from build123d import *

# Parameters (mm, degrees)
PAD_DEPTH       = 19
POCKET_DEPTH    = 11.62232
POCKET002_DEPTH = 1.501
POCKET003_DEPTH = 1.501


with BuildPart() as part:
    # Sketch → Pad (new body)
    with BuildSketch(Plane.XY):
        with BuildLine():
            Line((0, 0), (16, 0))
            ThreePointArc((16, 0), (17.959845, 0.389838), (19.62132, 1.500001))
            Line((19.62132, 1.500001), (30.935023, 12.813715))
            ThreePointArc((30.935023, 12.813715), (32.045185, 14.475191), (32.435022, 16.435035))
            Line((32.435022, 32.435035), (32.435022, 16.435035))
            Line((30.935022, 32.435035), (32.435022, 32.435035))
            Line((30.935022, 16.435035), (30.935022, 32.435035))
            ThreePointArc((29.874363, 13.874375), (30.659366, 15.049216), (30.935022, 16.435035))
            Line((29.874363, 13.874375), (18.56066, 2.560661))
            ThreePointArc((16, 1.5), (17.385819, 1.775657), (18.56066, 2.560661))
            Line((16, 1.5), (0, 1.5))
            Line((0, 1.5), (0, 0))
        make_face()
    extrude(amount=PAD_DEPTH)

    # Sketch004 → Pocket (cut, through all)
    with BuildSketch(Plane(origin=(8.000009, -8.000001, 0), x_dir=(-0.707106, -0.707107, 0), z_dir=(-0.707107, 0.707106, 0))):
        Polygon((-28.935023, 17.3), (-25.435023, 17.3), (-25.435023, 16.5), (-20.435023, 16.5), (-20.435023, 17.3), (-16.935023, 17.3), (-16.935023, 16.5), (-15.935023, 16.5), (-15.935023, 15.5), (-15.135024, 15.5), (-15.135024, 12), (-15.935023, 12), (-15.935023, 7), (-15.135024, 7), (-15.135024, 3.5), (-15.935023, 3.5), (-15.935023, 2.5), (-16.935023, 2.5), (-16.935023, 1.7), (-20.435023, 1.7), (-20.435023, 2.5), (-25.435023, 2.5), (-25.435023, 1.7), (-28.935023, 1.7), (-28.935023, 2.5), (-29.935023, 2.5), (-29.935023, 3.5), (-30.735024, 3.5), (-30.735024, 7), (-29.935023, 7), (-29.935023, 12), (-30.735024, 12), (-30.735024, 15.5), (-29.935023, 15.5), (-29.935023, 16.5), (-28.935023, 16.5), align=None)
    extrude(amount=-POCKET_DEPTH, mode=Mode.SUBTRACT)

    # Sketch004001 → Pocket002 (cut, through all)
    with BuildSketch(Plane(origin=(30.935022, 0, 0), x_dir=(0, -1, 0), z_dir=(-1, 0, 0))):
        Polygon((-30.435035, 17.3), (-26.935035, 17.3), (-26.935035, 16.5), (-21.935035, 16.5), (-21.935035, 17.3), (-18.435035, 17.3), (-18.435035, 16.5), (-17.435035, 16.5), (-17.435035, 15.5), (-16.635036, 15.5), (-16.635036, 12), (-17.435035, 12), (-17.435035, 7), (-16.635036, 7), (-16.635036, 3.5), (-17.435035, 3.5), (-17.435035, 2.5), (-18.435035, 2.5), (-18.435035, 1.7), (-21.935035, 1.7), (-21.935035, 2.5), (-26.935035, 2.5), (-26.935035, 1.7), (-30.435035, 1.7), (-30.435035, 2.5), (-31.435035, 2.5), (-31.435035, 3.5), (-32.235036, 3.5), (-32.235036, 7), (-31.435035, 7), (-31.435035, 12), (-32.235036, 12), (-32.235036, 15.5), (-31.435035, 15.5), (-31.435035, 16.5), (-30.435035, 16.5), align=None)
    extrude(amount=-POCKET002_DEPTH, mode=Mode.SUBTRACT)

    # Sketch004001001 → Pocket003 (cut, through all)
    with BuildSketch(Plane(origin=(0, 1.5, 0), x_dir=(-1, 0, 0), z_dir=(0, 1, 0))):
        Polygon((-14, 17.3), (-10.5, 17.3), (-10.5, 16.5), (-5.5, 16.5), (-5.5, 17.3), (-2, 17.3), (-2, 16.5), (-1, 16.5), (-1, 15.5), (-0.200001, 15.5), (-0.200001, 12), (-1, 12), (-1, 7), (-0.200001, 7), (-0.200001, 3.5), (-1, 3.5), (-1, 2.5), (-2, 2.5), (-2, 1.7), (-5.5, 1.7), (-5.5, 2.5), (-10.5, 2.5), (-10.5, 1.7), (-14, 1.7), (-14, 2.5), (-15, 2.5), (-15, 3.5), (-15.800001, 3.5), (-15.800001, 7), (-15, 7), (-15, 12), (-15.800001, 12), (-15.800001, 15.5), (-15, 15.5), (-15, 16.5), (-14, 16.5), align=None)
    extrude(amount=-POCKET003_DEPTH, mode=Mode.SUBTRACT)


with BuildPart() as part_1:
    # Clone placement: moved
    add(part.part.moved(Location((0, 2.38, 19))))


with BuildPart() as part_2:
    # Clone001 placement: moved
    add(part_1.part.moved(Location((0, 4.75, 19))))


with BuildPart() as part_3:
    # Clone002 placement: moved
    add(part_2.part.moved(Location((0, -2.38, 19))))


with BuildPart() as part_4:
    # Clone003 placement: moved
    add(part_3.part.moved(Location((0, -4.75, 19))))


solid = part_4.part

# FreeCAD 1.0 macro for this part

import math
import FreeCAD as App
import Part
import Sketcher
Q = App.Units.Quantity


def add_polygon(sketch, points):
    """Adds a closed chain of lines whose ends are joined by coincident constraints."""
    first, n = sketch.GeometryCount, len(points)
    for a, b in zip(points, points[1:] + points[:1]):
        sketch.addGeometry(Part.LineSegment(App.Vector(*a, 0), App.Vector(*b, 0)), False)
    for i in range(n):
        sketch.addConstraint(Sketcher.Constraint("Coincident", first + i, 2, first + (i + 1) % n, 1))

doc = App.newDocument("Part")
body = doc.addObject("PartDesign::Body", "Body")

# Sketch on XY plane
sketch1 = body.newObject("Sketcher::SketchObject", "Sketch")
sketch1.AttachmentSupport = (doc.getObject("XY_Plane"), [""])
sketch1.MapMode = "FlatFace"
sketch1.addGeometry(Part.LineSegment(App.Vector(0, 0, 0), App.Vector(16, 0, 0)), False)
sketch1.addGeometry(Part.ArcOfCircle(Part.Circle(App.Vector(16, 5.1, 0), App.Vector(0, 0, 1), 5.1), math.radians(-90), math.radians(-45)), False)
sketch1.addGeometry(Part.LineSegment(App.Vector(19.6, 1.5, 0), App.Vector(30.9, 12.8, 0)), False)
sketch1.addGeometry(Part.ArcOfCircle(Part.Circle(App.Vector(27.3, 16.4, 0), App.Vector(0, 0, 1), 5.1), math.radians(-45), math.radians(0)), False)
sketch1.addGeometry(Part.LineSegment(App.Vector(32.4, 16.4, 0), App.Vector(32.4, 32.4, 0)), False)
sketch1.addGeometry(Part.LineSegment(App.Vector(32.4, 32.4, 0), App.Vector(30.9, 32.4, 0)), False)
sketch1.addGeometry(Part.LineSegment(App.Vector(30.9, 32.4, 0), App.Vector(30.9, 16.4, 0)), False)
sketch1.addGeometry(Part.ArcOfCircle(Part.Circle(App.Vector(27.3, 16.4, 0), App.Vector(0, 0, 1), 3.6), math.radians(-45), math.radians(0)), False)
sketch1.addGeometry(Part.LineSegment(App.Vector(29.9, 13.9, 0), App.Vector(18.6, 2.6, 0)), False)
sketch1.addGeometry(Part.ArcOfCircle(Part.Circle(App.Vector(16, 5.1, 0), App.Vector(0, 0, 1), 3.6), math.radians(-90), math.radians(-45)), False)
sketch1.addGeometry(Part.LineSegment(App.Vector(16, 1.5, 0), App.Vector(0, 1.5, 0)), False)
sketch1.addGeometry(Part.LineSegment(App.Vector(0, 1.5, 0), App.Vector(0, 0, 0)), False)
sketch1.addConstraint(Sketcher.Constraint("Tangent", 0, 2, 1, 1))
sketch1.addConstraint(Sketcher.Constraint("Tangent", 1, 2, 2, 1))
sketch1.addConstraint(Sketcher.Constraint("Tangent", 2, 2, 3, 1))
sketch1.addConstraint(Sketcher.Constraint("Tangent", 3, 2, 4, 1))
sketch1.addConstraint(Sketcher.Constraint("Coincident", 4, 2, 5, 1))
sketch1.addConstraint(Sketcher.Constraint("Coincident", 5, 2, 6, 1))
sketch1.addConstraint(Sketcher.Constraint("Tangent", 6, 2, 7, 2))
sketch1.addConstraint(Sketcher.Constraint("Tangent", 7, 1, 8, 1))
sketch1.addConstraint(Sketcher.Constraint("Tangent", 8, 2, 9, 2))
sketch1.addConstraint(Sketcher.Constraint("Tangent", 9, 1, 10, 1))
sketch1.addConstraint(Sketcher.Constraint("Coincident", 10, 2, 11, 1))
sketch1.addConstraint(Sketcher.Constraint("Coincident", 11, 2, 0, 1))
sketch1.addConstraint(Sketcher.Constraint("Horizontal", 0))
sketch1.addConstraint(Sketcher.Constraint("Vertical", 4))
sketch1.addConstraint(Sketcher.Constraint("Horizontal", 5))
sketch1.addConstraint(Sketcher.Constraint("Vertical", 6))
sketch1.addConstraint(Sketcher.Constraint("Horizontal", 10))
sketch1.addConstraint(Sketcher.Constraint("Vertical", 11))
sketch1.addConstraint(Sketcher.Constraint("Coincident", 11, 2, -1, 1))
sketch1.addConstraint(Sketcher.Constraint("Coincident", 7, 3, 3, 3))
sketch1.addConstraint(Sketcher.Constraint("Coincident", 9, 3, 1, 3))
sketch1.addConstraint(Sketcher.Constraint("Equal", 7, 9))
sketch1.addConstraint(Sketcher.Constraint("Parallel", 2, 8))
sketch1.addConstraint(Sketcher.Constraint("Horizontal", 1, 2, 9, 1))
sketch1.addConstraint(Sketcher.Constraint("Vertical", 2, 2, 5, 2))
sketch1.addConstraint(Sketcher.Constraint("Equal", 10, 4))
sketch1.addConstraint(Sketcher.Constraint("DistanceX", 0, 1, 0, 2, Q("16 mm")))
sketch1.addConstraint(Sketcher.Constraint("Distance", 2, Q("16 mm")))
sketch1.addConstraint(Sketcher.Constraint("DistanceX", 5, 2, 5, 1, Q("1.5 mm")))
pad1 = body.newObject("PartDesign::Pad", "Pad")
pad1.Profile = sketch1
pad1.Length = 19

# Sketch on an angled plane
sketch2 = body.newObject("Sketcher::SketchObject", "Sketch001")
sketch2.Placement = App.Placement(App.Vector(8.000009, -8.000001, 0), App.Rotation(App.Vector(-0.707106281, -0.707107281, 0), App.Vector(0, 0, 0.999999999), App.Vector(-0.707107281, 0.707106281, 0), "ZXY"))
add_polygon(sketch2, [(-25.4, 17.3), (-28.9, 17.3), (-28.9, 16.5), (-29.9, 16.5), (-29.9, 15.5), (-30.7, 15.5), (-30.7, 12), (-29.9, 12), (-29.9, 7), (-30.7, 7), (-30.7, 3.5), (-29.9, 3.5), (-29.9, 2.5), (-28.9, 2.5), (-28.9, 1.7), (-25.4, 1.7), (-25.4, 2.5), (-20.4, 2.5), (-20.4, 1.7), (-16.9, 1.7), (-16.9, 2.5), (-15.9, 2.5), (-15.9, 3.5), (-15.1, 3.5), (-15.1, 7), (-15.9, 7), (-15.9, 12), (-15.1, 12), (-15.1, 15.5), (-15.9, 15.5), (-15.9, 16.5), (-16.9, 16.5), (-16.9, 17.3), (-20.4, 17.3), (-20.4, 16.5), (-25.4, 16.5)])  # lines 0-35
sketch2.addConstraint(Sketcher.Constraint("Horizontal", 0))
sketch2.addConstraint(Sketcher.Constraint("Vertical", 1))
sketch2.addConstraint(Sketcher.Constraint("Horizontal", 2))
sketch2.addConstraint(Sketcher.Constraint("Vertical", 3))
sketch2.addConstraint(Sketcher.Constraint("Horizontal", 4))
sketch2.addConstraint(Sketcher.Constraint("Vertical", 5))
sketch2.addConstraint(Sketcher.Constraint("Horizontal", 6))
sketch2.addConstraint(Sketcher.Constraint("Vertical", 7))
sketch2.addConstraint(Sketcher.Constraint("Horizontal", 8))
sketch2.addConstraint(Sketcher.Constraint("Vertical", 9))
sketch2.addConstraint(Sketcher.Constraint("Horizontal", 10))
sketch2.addConstraint(Sketcher.Constraint("Vertical", 11))
sketch2.addConstraint(Sketcher.Constraint("Horizontal", 12))
sketch2.addConstraint(Sketcher.Constraint("Vertical", 13))
sketch2.addConstraint(Sketcher.Constraint("Horizontal", 14))
sketch2.addConstraint(Sketcher.Constraint("Vertical", 15))
sketch2.addConstraint(Sketcher.Constraint("Horizontal", 16))
sketch2.addConstraint(Sketcher.Constraint("Vertical", 17))
sketch2.addConstraint(Sketcher.Constraint("Horizontal", 18))
sketch2.addConstraint(Sketcher.Constraint("Vertical", 19))
sketch2.addConstraint(Sketcher.Constraint("Horizontal", 20))
sketch2.addConstraint(Sketcher.Constraint("Vertical", 21))
sketch2.addConstraint(Sketcher.Constraint("Horizontal", 22))
sketch2.addConstraint(Sketcher.Constraint("Vertical", 23))
sketch2.addConstraint(Sketcher.Constraint("Horizontal", 24))
sketch2.addConstraint(Sketcher.Constraint("Vertical", 25))
sketch2.addConstraint(Sketcher.Constraint("Horizontal", 26))
sketch2.addConstraint(Sketcher.Constraint("Vertical", 27))
sketch2.addConstraint(Sketcher.Constraint("Horizontal", 28))
sketch2.addConstraint(Sketcher.Constraint("Vertical", 29))
sketch2.addConstraint(Sketcher.Constraint("Horizontal", 30))
sketch2.addConstraint(Sketcher.Constraint("Vertical", 31))
sketch2.addConstraint(Sketcher.Constraint("Horizontal", 32))
sketch2.addConstraint(Sketcher.Constraint("Vertical", 33))
sketch2.addConstraint(Sketcher.Constraint("Horizontal", 34))
sketch2.addConstraint(Sketcher.Constraint("Vertical", 35))
sketch2.addConstraint(Sketcher.Constraint("Horizontal", 12, 2, 15, 2))
sketch2.addConstraint(Sketcher.Constraint("Horizontal", 14, 2, 17, 2))
sketch2.addConstraint(Sketcher.Constraint("Horizontal", 16, 2, 19, 2))
sketch2.addConstraint(Sketcher.Constraint("Horizontal", 10, 2, 21, 2))
sketch2.addConstraint(Sketcher.Constraint("Horizontal", 8, 2, 23, 2))
sketch2.addConstraint(Sketcher.Constraint("Horizontal", 6, 2, 25, 2))
sketch2.addConstraint(Sketcher.Constraint("Horizontal", 4, 2, 27, 2))
sketch2.addConstraint(Sketcher.Constraint("Horizontal", 2, 2, 29, 2))
sketch2.addConstraint(Sketcher.Constraint("Horizontal", 0, 2, 31, 2))
sketch2.addConstraint(Sketcher.Constraint("Horizontal", 30, 2, 33, 2))
sketch2.addConstraint(Sketcher.Constraint("Vertical", 3, 2, 6, 2))
sketch2.addConstraint(Sketcher.Constraint("Vertical", 5, 2, 8, 2))
sketch2.addConstraint(Sketcher.Constraint("Vertical", 7, 2, 10, 2))
sketch2.addConstraint(Sketcher.Constraint("Vertical", 1, 2, 12, 2))
sketch2.addConstraint(Sketcher.Constraint("Vertical", 21, 2, 24, 2))
sketch2.addConstraint(Sketcher.Constraint("Vertical", 23, 2, 26, 2))
sketch2.addConstraint(Sketcher.Constraint("Vertical", 25, 2, 28, 2))
sketch2.addConstraint(Sketcher.Constraint("Vertical", 19, 2, 30, 2))
sketch2.addConstraint(Sketcher.Constraint("Vertical", 17, 2, 32, 2))
sketch2.addConstraint(Sketcher.Constraint("Vertical", 15, 2, 34, 2))
sketch2.addConstraint(Sketcher.Constraint("Equal", 14, 18))
sketch2.addConstraint(Sketcher.Constraint("Equal", 12, 20))
sketch2.addConstraint(Sketcher.Constraint("Equal", 28, 1))
sketch2.addConstraint(Sketcher.Constraint("Equal", 30, 3))
sketch2.addConstraint(Sketcher.Constraint("Equal", 32, 5))
sketch2.addConstraint(Sketcher.Constraint("Equal", 34, 7))
sketch2.addConstraint(Sketcher.Constraint("Equal", 5, 9))
sketch2.addConstraint(Sketcher.Constraint("Equal", 3, 11))
sketch2.addConstraint(Sketcher.Constraint("Equal", 1, 13))
sketch2.addConstraint(Sketcher.Constraint("Equal", 10, 15))
sketch2.addConstraint(Sketcher.Constraint("DistanceX", 2, 2, 2, 1, Q("1 mm")))
sketch2.addConstraint(Sketcher.Constraint("DistanceX", 16, 1, 16, 2, Q("5 mm")))
sketch2.addConstraint(Sketcher.Constraint("DistanceX", 0, 2, 0, 1, Q("3.5 mm")))
sketch2.addConstraint(Sketcher.Constraint("DistanceX", 4, 2, 4, 1, Q("0.800001 mm")))
sketch2.addConstraint(Sketcher.Constraint("DistanceY", -1, 1, 5, 2, Q("12 mm")))
sketch2.addConstraint(Sketcher.Constraint("DistanceX", 0, 2, -1, 1, Q("28.935023 mm")))
pocket1 = body.newObject("PartDesign::Pocket", "Pocket")
pocket1.Profile = sketch2
pocket1.Type = "ThroughAll"

# Sketch on YZ plane
sketch3 = body.newObject("Sketcher::SketchObject", "Sketch002")
sketch3.AttachmentSupport = (doc.getObject("YZ_Plane"), [""])
sketch3.MapMode = "FlatFace"
sketch3.AttachmentOffset = App.Placement(App.Vector(0, 0, 30.935022), App.Rotation())
add_polygon(sketch3, [(26.9, 17.3), (30.4, 17.3), (30.4, 16.5), (31.4, 16.5), (31.4, 15.5), (32.2, 15.5), (32.2, 12), (31.4, 12), (31.4, 7), (32.2, 7), (32.2, 3.5), (31.4, 3.5), (31.4, 2.5), (30.4, 2.5), (30.4, 1.7), (26.9, 1.7), (26.9, 2.5), (21.9, 2.5), (21.9, 1.7), (18.4, 1.7), (18.4, 2.5), (17.4, 2.5), (17.4, 3.5), (16.6, 3.5), (16.6, 7), (17.4, 7), (17.4, 12), (16.6, 12), (16.6, 15.5), (17.4, 15.5), (17.4, 16.5), (18.4, 16.5), (18.4, 17.3), (21.9, 17.3), (21.9, 16.5), (26.9, 16.5)])  # lines 0-35
sketch3.addConstraint(Sketcher.Constraint("Horizontal", 0))
sketch3.addConstraint(Sketcher.Constraint("Vertical", 1))
sketch3.addConstraint(Sketcher.Constraint("Horizontal", 2))
sketch3.addConstraint(Sketcher.Constraint("Vertical", 3))
sketch3.addConstraint(Sketcher.Constraint("Horizontal", 4))
sketch3.addConstraint(Sketcher.Constraint("Vertical", 5))
sketch3.addConstraint(Sketcher.Constraint("Horizontal", 6))
sketch3.addConstraint(Sketcher.Constraint("Vertical", 7))
sketch3.addConstraint(Sketcher.Constraint("Horizontal", 8))
sketch3.addConstraint(Sketcher.Constraint("Vertical", 9))
sketch3.addConstraint(Sketcher.Constraint("Horizontal", 10))
sketch3.addConstraint(Sketcher.Constraint("Vertical", 11))
sketch3.addConstraint(Sketcher.Constraint("Horizontal", 12))
sketch3.addConstraint(Sketcher.Constraint("Vertical", 13))
sketch3.addConstraint(Sketcher.Constraint("Horizontal", 14))
sketch3.addConstraint(Sketcher.Constraint("Vertical", 15))
sketch3.addConstraint(Sketcher.Constraint("Horizontal", 16))
sketch3.addConstraint(Sketcher.Constraint("Vertical", 17))
sketch3.addConstraint(Sketcher.Constraint("Horizontal", 18))
sketch3.addConstraint(Sketcher.Constraint("Vertical", 19))
sketch3.addConstraint(Sketcher.Constraint("Horizontal", 20))
sketch3.addConstraint(Sketcher.Constraint("Vertical", 21))
sketch3.addConstraint(Sketcher.Constraint("Horizontal", 22))
sketch3.addConstraint(Sketcher.Constraint("Vertical", 23))
sketch3.addConstraint(Sketcher.Constraint("Horizontal", 24))
sketch3.addConstraint(Sketcher.Constraint("Vertical", 25))
sketch3.addConstraint(Sketcher.Constraint("Horizontal", 26))
sketch3.addConstraint(Sketcher.Constraint("Vertical", 27))
sketch3.addConstraint(Sketcher.Constraint("Horizontal", 28))
sketch3.addConstraint(Sketcher.Constraint("Vertical", 29))
sketch3.addConstraint(Sketcher.Constraint("Horizontal", 30))
sketch3.addConstraint(Sketcher.Constraint("Vertical", 31))
sketch3.addConstraint(Sketcher.Constraint("Horizontal", 32))
sketch3.addConstraint(Sketcher.Constraint("Vertical", 33))
sketch3.addConstraint(Sketcher.Constraint("Horizontal", 34))
sketch3.addConstraint(Sketcher.Constraint("Vertical", 35))
sketch3.addConstraint(Sketcher.Constraint("Horizontal", 12, 2, 15, 2))
sketch3.addConstraint(Sketcher.Constraint("Horizontal", 14, 2, 17, 2))
sketch3.addConstraint(Sketcher.Constraint("Horizontal", 16, 2, 19, 2))
sketch3.addConstraint(Sketcher.Constraint("Horizontal", 10, 2, 21, 2))
sketch3.addConstraint(Sketcher.Constraint("Horizontal", 8, 2, 23, 2))
sketch3.addConstraint(Sketcher.Constraint("Horizontal", 6, 2, 25, 2))
sketch3.addConstraint(Sketcher.Constraint("Horizontal", 4, 2, 27, 2))
sketch3.addConstraint(Sketcher.Constraint("Horizontal", 2, 2, 29, 2))
sketch3.addConstraint(Sketcher.Constraint("Horizontal", 0, 2, 31, 2))
sketch3.addConstraint(Sketcher.Constraint("Horizontal", 30, 2, 33, 2))
sketch3.addConstraint(Sketcher.Constraint("Vertical", 3, 2, 6, 2))
sketch3.addConstraint(Sketcher.Constraint("Vertical", 5, 2, 8, 2))
sketch3.addConstraint(Sketcher.Constraint("Vertical", 7, 2, 10, 2))
sketch3.addConstraint(Sketcher.Constraint("Vertical", 1, 2, 12, 2))
sketch3.addConstraint(Sketcher.Constraint("Vertical", 21, 2, 24, 2))
sketch3.addConstraint(Sketcher.Constraint("Vertical", 23, 2, 26, 2))
sketch3.addConstraint(Sketcher.Constraint("Vertical", 25, 2, 28, 2))
sketch3.addConstraint(Sketcher.Constraint("Vertical", 19, 2, 30, 2))
sketch3.addConstraint(Sketcher.Constraint("Vertical", 17, 2, 32, 2))
sketch3.addConstraint(Sketcher.Constraint("Vertical", 15, 2, 34, 2))
sketch3.addConstraint(Sketcher.Constraint("Equal", 14, 18))
sketch3.addConstraint(Sketcher.Constraint("Equal", 12, 20))
sketch3.addConstraint(Sketcher.Constraint("Equal", 28, 1))
sketch3.addConstraint(Sketcher.Constraint("Equal", 30, 3))
sketch3.addConstraint(Sketcher.Constraint("Equal", 32, 5))
sketch3.addConstraint(Sketcher.Constraint("Equal", 34, 7))
sketch3.addConstraint(Sketcher.Constraint("Equal", 5, 9))
sketch3.addConstraint(Sketcher.Constraint("Equal", 3, 11))
sketch3.addConstraint(Sketcher.Constraint("Equal", 1, 13))
sketch3.addConstraint(Sketcher.Constraint("Equal", 10, 15))
sketch3.addConstraint(Sketcher.Constraint("DistanceX", 2, 1, 2, 2, Q("1 mm")))
sketch3.addConstraint(Sketcher.Constraint("DistanceX", 16, 2, 16, 1, Q("5 mm")))
sketch3.addConstraint(Sketcher.Constraint("DistanceX", 0, 1, 0, 2, Q("3.5 mm")))
sketch3.addConstraint(Sketcher.Constraint("DistanceX", 4, 1, 4, 2, Q("0.800001 mm")))
sketch3.addConstraint(Sketcher.Constraint("DistanceY", -1, 1, 5, 2, Q("12 mm")))
sketch3.addConstraint(Sketcher.Constraint("DistanceX", -1, 1, 0, 2, Q("30.435035 mm")))
pocket2 = body.newObject("PartDesign::Pocket", "Pocket001")
pocket2.Profile = sketch3
pocket2.Type = "ThroughAll"
pocket2.Reversed = True

# Sketch on XZ plane
sketch4 = body.newObject("Sketcher::SketchObject", "Sketch003")
sketch4.AttachmentSupport = (doc.getObject("XZ_Plane"), [""])
sketch4.MapMode = "FlatFace"
sketch4.AttachmentOffset = App.Placement(App.Vector(0, 0, -1.5), App.Rotation())
add_polygon(sketch4, [(10.5, 17.3), (14, 17.3), (14, 16.5), (15, 16.5), (15, 15.5), (15.8, 15.5), (15.8, 12), (15, 12), (15, 7), (15.8, 7), (15.8, 3.5), (15, 3.5), (15, 2.5), (14, 2.5), (14, 1.7), (10.5, 1.7), (10.5, 2.5), (5.5, 2.5), (5.5, 1.7), (2, 1.7), (2, 2.5), (1, 2.5), (1, 3.5), (0.2, 3.5), (0.2, 7), (1, 7), (1, 12), (0.2, 12), (0.2, 15.5), (1, 15.5), (1, 16.5), (2, 16.5), (2, 17.3), (5.5, 17.3), (5.5, 16.5), (10.5, 16.5)])  # lines 0-35
sketch4.addConstraint(Sketcher.Constraint("Horizontal", 0))
sketch4.addConstraint(Sketcher.Constraint("Vertical", 1))
sketch4.addConstraint(Sketcher.Constraint("Horizontal", 2))
sketch4.addConstraint(Sketcher.Constraint("Vertical", 3))
sketch4.addConstraint(Sketcher.Constraint("Horizontal", 4))
sketch4.addConstraint(Sketcher.Constraint("Vertical", 5))
sketch4.addConstraint(Sketcher.Constraint("Horizontal", 6))
sketch4.addConstraint(Sketcher.Constraint("Vertical", 7))
sketch4.addConstraint(Sketcher.Constraint("Horizontal", 8))
sketch4.addConstraint(Sketcher.Constraint("Vertical", 9))
sketch4.addConstraint(Sketcher.Constraint("Horizontal", 10))
sketch4.addConstraint(Sketcher.Constraint("Vertical", 11))
sketch4.addConstraint(Sketcher.Constraint("Horizontal", 12))
sketch4.addConstraint(Sketcher.Constraint("Vertical", 13))
sketch4.addConstraint(Sketcher.Constraint("Horizontal", 14))
sketch4.addConstraint(Sketcher.Constraint("Vertical", 15))
sketch4.addConstraint(Sketcher.Constraint("Horizontal", 16))
sketch4.addConstraint(Sketcher.Constraint("Vertical", 17))
sketch4.addConstraint(Sketcher.Constraint("Horizontal", 18))
sketch4.addConstraint(Sketcher.Constraint("Vertical", 19))
sketch4.addConstraint(Sketcher.Constraint("Horizontal", 20))
sketch4.addConstraint(Sketcher.Constraint("Vertical", 21))
sketch4.addConstraint(Sketcher.Constraint("Horizontal", 22))
sketch4.addConstraint(Sketcher.Constraint("Vertical", 23))
sketch4.addConstraint(Sketcher.Constraint("Horizontal", 24))
sketch4.addConstraint(Sketcher.Constraint("Vertical", 25))
sketch4.addConstraint(Sketcher.Constraint("Horizontal", 26))
sketch4.addConstraint(Sketcher.Constraint("Vertical", 27))
sketch4.addConstraint(Sketcher.Constraint("Horizontal", 28))
sketch4.addConstraint(Sketcher.Constraint("Vertical", 29))
sketch4.addConstraint(Sketcher.Constraint("Horizontal", 30))
sketch4.addConstraint(Sketcher.Constraint("Vertical", 31))
sketch4.addConstraint(Sketcher.Constraint("Horizontal", 32))
sketch4.addConstraint(Sketcher.Constraint("Vertical", 33))
sketch4.addConstraint(Sketcher.Constraint("Horizontal", 34))
sketch4.addConstraint(Sketcher.Constraint("Vertical", 35))
sketch4.addConstraint(Sketcher.Constraint("Horizontal", 12, 2, 15, 2))
sketch4.addConstraint(Sketcher.Constraint("Horizontal", 14, 2, 17, 2))
sketch4.addConstraint(Sketcher.Constraint("Horizontal", 16, 2, 19, 2))
sketch4.addConstraint(Sketcher.Constraint("Horizontal", 10, 2, 21, 2))
sketch4.addConstraint(Sketcher.Constraint("Horizontal", 8, 2, 23, 2))
sketch4.addConstraint(Sketcher.Constraint("Horizontal", 6, 2, 25, 2))
sketch4.addConstraint(Sketcher.Constraint("Horizontal", 4, 2, 27, 2))
sketch4.addConstraint(Sketcher.Constraint("Horizontal", 2, 2, 29, 2))
sketch4.addConstraint(Sketcher.Constraint("Horizontal", 0, 2, 31, 2))
sketch4.addConstraint(Sketcher.Constraint("Horizontal", 30, 2, 33, 2))
sketch4.addConstraint(Sketcher.Constraint("Vertical", 3, 2, 6, 2))
sketch4.addConstraint(Sketcher.Constraint("Vertical", 5, 2, 8, 2))
sketch4.addConstraint(Sketcher.Constraint("Vertical", 7, 2, 10, 2))
sketch4.addConstraint(Sketcher.Constraint("Vertical", 1, 2, 12, 2))
sketch4.addConstraint(Sketcher.Constraint("Vertical", 21, 2, 24, 2))
sketch4.addConstraint(Sketcher.Constraint("Vertical", 23, 2, 26, 2))
sketch4.addConstraint(Sketcher.Constraint("Vertical", 25, 2, 28, 2))
sketch4.addConstraint(Sketcher.Constraint("Vertical", 19, 2, 30, 2))
sketch4.addConstraint(Sketcher.Constraint("Vertical", 17, 2, 32, 2))
sketch4.addConstraint(Sketcher.Constraint("Vertical", 15, 2, 34, 2))
sketch4.addConstraint(Sketcher.Constraint("Equal", 14, 18))
sketch4.addConstraint(Sketcher.Constraint("Equal", 12, 20))
sketch4.addConstraint(Sketcher.Constraint("Equal", 10, 22))
sketch4.addConstraint(Sketcher.Constraint("Equal", 28, 1))
sketch4.addConstraint(Sketcher.Constraint("Equal", 30, 3))
sketch4.addConstraint(Sketcher.Constraint("Equal", 32, 5))
sketch4.addConstraint(Sketcher.Constraint("Equal", 34, 7))
sketch4.addConstraint(Sketcher.Constraint("Equal", 5, 9))
sketch4.addConstraint(Sketcher.Constraint("Equal", 3, 11))
sketch4.addConstraint(Sketcher.Constraint("Equal", 1, 13))
sketch4.addConstraint(Sketcher.Constraint("DistanceX", 2, 1, 2, 2, Q("1 mm")))
sketch4.addConstraint(Sketcher.Constraint("DistanceX", 16, 2, 16, 1, Q("5 mm")))
sketch4.addConstraint(Sketcher.Constraint("DistanceX", 0, 1, 0, 2, Q("3.5 mm")))
sketch4.addConstraint(Sketcher.Constraint("DistanceX", 4, 1, 4, 2, Q("0.800001 mm")))
sketch4.addConstraint(Sketcher.Constraint("DistanceX", -1, 1, 0, 2, Q("14 mm")))
sketch4.addConstraint(Sketcher.Constraint("DistanceY", -1, 1, 5, 2, Q("12 mm")))
pocket3 = body.newObject("PartDesign::Pocket", "Pocket002")
pocket3.Profile = sketch4
pocket3.Type = "ThroughAll"
pocket3.Reversed = True
body2 = doc.addObject("PartDesign::Body", "Body001")
doc.recompute()

body.Placement = App.Placement(App.Vector(0, 2.38, 19), App.Rotation(App.Vector(0, 0, 1), 0))
boolean = body2.newObject("PartDesign::Boolean", "Boolean")
boolean.Type = "Fuse"
boolean.addObjects([body])
body3 = doc.addObject("PartDesign::Body", "Body002")
doc.recompute()

body2.Placement = App.Placement(App.Vector(0, 4.75, 19), App.Rotation(App.Vector(0, 0, 1), 0))
boolean2 = body3.newObject("PartDesign::Boolean", "Boolean001")
boolean2.Type = "Fuse"
boolean2.addObjects([body2])
body4 = doc.addObject("PartDesign::Body", "Body003")
doc.recompute()

body3.Placement = App.Placement(App.Vector(0, -2.38, 19), App.Rotation(App.Vector(0, 0, 1), 0))
boolean3 = body4.newObject("PartDesign::Boolean", "Boolean002")
boolean3.Type = "Fuse"
boolean3.addObjects([body3])
body5 = doc.addObject("PartDesign::Body", "Body004")
doc.recompute()

body4.Placement = App.Placement(App.Vector(0, -4.75, 19), App.Rotation(App.Vector(0, 0, 1), 0))
boolean4 = body5.newObject("PartDesign::Boolean", "Boolean003")
boolean4.Type = "Fuse"
boolean4.addObjects([body4])

doc.recompute()
